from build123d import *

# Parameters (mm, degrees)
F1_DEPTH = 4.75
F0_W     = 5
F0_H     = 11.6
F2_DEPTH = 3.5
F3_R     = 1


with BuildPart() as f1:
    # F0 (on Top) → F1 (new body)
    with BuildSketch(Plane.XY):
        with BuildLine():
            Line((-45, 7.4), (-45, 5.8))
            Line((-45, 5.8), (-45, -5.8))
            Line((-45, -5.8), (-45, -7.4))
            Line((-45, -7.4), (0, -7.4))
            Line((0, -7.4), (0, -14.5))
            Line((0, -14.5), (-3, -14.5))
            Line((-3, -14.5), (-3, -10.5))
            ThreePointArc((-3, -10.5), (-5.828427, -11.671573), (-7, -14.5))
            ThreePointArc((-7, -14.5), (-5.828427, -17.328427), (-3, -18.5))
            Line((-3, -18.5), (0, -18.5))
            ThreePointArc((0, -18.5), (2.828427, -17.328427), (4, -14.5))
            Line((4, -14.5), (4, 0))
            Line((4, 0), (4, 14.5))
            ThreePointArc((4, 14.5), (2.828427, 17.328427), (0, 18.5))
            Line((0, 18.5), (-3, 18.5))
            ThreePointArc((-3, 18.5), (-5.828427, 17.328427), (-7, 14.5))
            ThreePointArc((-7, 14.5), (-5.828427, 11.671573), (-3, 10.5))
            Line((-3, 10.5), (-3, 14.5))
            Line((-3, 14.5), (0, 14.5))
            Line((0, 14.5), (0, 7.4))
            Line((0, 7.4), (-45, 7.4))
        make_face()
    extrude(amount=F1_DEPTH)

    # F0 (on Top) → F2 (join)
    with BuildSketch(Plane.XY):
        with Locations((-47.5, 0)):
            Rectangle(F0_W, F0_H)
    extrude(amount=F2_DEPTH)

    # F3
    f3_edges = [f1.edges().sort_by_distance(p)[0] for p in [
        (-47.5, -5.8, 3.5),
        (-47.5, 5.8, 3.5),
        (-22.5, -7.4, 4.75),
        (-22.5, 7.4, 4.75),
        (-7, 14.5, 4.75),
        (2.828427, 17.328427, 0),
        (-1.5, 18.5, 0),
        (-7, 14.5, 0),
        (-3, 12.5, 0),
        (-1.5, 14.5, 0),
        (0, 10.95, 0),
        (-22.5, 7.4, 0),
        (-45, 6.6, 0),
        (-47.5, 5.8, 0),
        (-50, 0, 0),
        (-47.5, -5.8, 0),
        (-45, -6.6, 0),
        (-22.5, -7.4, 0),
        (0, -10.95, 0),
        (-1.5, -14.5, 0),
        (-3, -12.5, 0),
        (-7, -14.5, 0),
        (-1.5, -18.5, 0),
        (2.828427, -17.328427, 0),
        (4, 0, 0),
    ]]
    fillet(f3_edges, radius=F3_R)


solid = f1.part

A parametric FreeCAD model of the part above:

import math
import FreeCAD as App
import Part
import Sketcher
from FreeCAD import Vector
Q = App.Units.Quantity


def edges_at(feature, points):
    """Names of the edges that pass closest to the given points."""
    edges = feature.Shape.Edges
    near = lambda p: min(range(len(edges)), key=lambda i: edges[i].distToShape(Part.Vertex(*p))[0])
    return sorted({f"Edge{near(p) + 1}" for p in points})


def add_polygon(sketch, points):
    """Adds a closed chain of lines whose ends are joined by coincident constraints."""
    first, n = sketch.GeometryCount, len(points)
    for a, b in zip(points, points[1:] + points[:1]):
        sketch.addGeometry(Part.LineSegment(App.Vector(*a, 0), App.Vector(*b, 0)), False)
    for i in range(n):
        sketch.addConstraint(Sketcher.Constraint("Coincident", first + i, 2, first + (i + 1) % n, 1))

doc = App.newDocument("Part")
body = doc.addObject("PartDesign::Body", "Body")

sketch1 = body.newObject("Sketcher::SketchObject", "Sketch")
sketch1.AttachmentSupport = (doc.getObject("XY_Plane"), [""])
sketch1.MapMode = "FlatFace"
sketch1.addGeometry([
    Part.LineSegment(Vector(-45, 7.4, 0), Vector(-45, -7.4, 0)),
    Part.LineSegment(Vector(-45, -7.4, 0), Vector(0, -7.4, 0)),
    Part.LineSegment(Vector(0, -7.4, 0), Vector(0, -14.5, 0)),
    Part.LineSegment(Vector(0, -14.5, 0), Vector(-3, -14.5, 0)),
    Part.LineSegment(Vector(-3, -14.5, 0), Vector(-3, -10.5, 0)),
    Part.ArcOfCircle(Part.Circle(Vector(-3, -14.5, 0), Vector(0, 0, 1), 4), math.radians(90.000006), math.radians(179.999994)),
    Part.ArcOfCircle(Part.Circle(Vector(-3, -14.5, 0), Vector(0, 0, 1), 4), math.radians(-179.999994), math.radians(-90.000006)),
    Part.LineSegment(Vector(-3, -18.5, 0), Vector(0, -18.5, 0)),
    Part.ArcOfCircle(Part.Circle(Vector(0, -14.5, 0), Vector(0, 0, 1), 4), math.radians(-89.999994), math.radians(-0.000006)),
    Part.LineSegment(Vector(4, -14.5, 0), Vector(4, 14.5, 0)),
    Part.ArcOfCircle(Part.Circle(Vector(0, 14.5, 0), Vector(0, 0, 1), 4), math.radians(0.000006), math.radians(89.999994)),
    Part.LineSegment(Vector(0, 18.5, 0), Vector(-3, 18.5, 0)),
    Part.ArcOfCircle(Part.Circle(Vector(-3, 14.5, 0), Vector(0, 0, 1), 4), math.radians(90.000006), math.radians(179.999994)),
    Part.ArcOfCircle(Part.Circle(Vector(-3, 14.5, 0), Vector(0, 0, 1), 4), math.radians(-179.999994), math.radians(-90.000006)),
    Part.LineSegment(Vector(-3, 10.5, 0), Vector(-3, 14.5, 0)),
    Part.LineSegment(Vector(-3, 14.5, 0), Vector(0, 14.5, 0)),
    Part.LineSegment(Vector(0, 14.5, 0), Vector(0, 7.4, 0)),
    Part.LineSegment(Vector(0, 7.4, 0), Vector(-45, 7.4, 0)),
], False)
sketch1.addConstraint([
    Sketcher.Constraint("Coincident", 0, 2, 1, 1),
    Sketcher.Constraint("Coincident", 1, 2, 2, 1),
    Sketcher.Constraint("Coincident", 2, 2, 3, 1),
    Sketcher.Constraint("Coincident", 3, 2, 4, 1),
    Sketcher.Constraint("Coincident", 4, 2, 5, 1),
    Sketcher.Constraint("Tangent", 5, 2, 6, 1),
    Sketcher.Constraint("Tangent", 6, 2, 7, 1),
    Sketcher.Constraint("Tangent", 7, 2, 8, 1),
    Sketcher.Constraint("Tangent", 8, 2, 9, 1),
    Sketcher.Constraint("Tangent", 9, 2, 10, 1),
    Sketcher.Constraint("Tangent", 10, 2, 11, 1),
    Sketcher.Constraint("Tangent", 11, 2, 12, 1),
    Sketcher.Constraint("Tangent", 12, 2, 13, 1),
    Sketcher.Constraint("Coincident", 13, 2, 14, 1),
    Sketcher.Constraint("Coincident", 14, 2, 15, 1),
    Sketcher.Constraint("Coincident", 15, 2, 16, 1),
    Sketcher.Constraint("Coincident", 16, 2, 17, 1),
    Sketcher.Constraint("Coincident", 17, 2, 0, 1),
    Sketcher.Constraint("Vertical", 0),
    Sketcher.Constraint("Horizontal", 1),
    Sketcher.Constraint("Vertical", 2),
    Sketcher.Constraint("Horizontal", 3),
    Sketcher.Constraint("Vertical", 4),
    Sketcher.Constraint("Horizontal", 7),
    Sketcher.Constraint("Vertical", 9),
    Sketcher.Constraint("Horizontal", 11),
    Sketcher.Constraint("Vertical", 14),
    Sketcher.Constraint("Horizontal", 15),
    Sketcher.Constraint("Vertical", 16),
    Sketcher.Constraint("Horizontal", 17),
    Sketcher.Constraint("Coincident", 2, 2, 8, 3),
    Sketcher.Constraint("Coincident", 3, 2, 5, 3),
    Sketcher.Constraint("Coincident", 14, 2, 12, 3),
    Sketcher.Constraint("Coincident", 15, 2, 10, 3),
    Sketcher.Constraint("Equal", 5, 6),
    Sketcher.Constraint("Equal", 8, 10),
    Sketcher.Constraint("Equal", 12, 13),
    Sketcher.Constraint("Symmetric", 8, 3, 10, 3, -1, 1),
    Sketcher.Constraint("Symmetric", 5, 2, 12, 2, -1),
    Sketcher.Constraint("Horizontal", 3, 2, 5, 2),
    Sketcher.Constraint("Equal", 2, 16),
    Sketcher.Constraint("Radius", 5, Q("4 mm")),
    Sketcher.Constraint("DistanceX", 1, 1, 1, 2, Q("45 mm")),
    Sketcher.Constraint("DistanceX", 3, 2, 3, 1, Q("3 mm")),
    Sketcher.Constraint("DistanceY", 9, 1, 9, 2, Q("29 mm")),
    Sketcher.Constraint("DistanceY", 0, 2, 0, 1, Q("14.8 mm")),
])
pad1 = body.newObject("PartDesign::Pad", "Pad")
pad1.Profile = sketch1
pad1.Length = 4.75

sketch2 = body.newObject("Sketcher::SketchObject", "Sketch001")
sketch2.AttachmentSupport = (doc.getObject("XY_Plane"), [""])
sketch2.MapMode = "FlatFace"
add_polygon(sketch2, [(-50, 5.8), (-50, -5.8), (-45, -5.8), (-45, 5.8)])
sketch2.addConstraint([
    Sketcher.Constraint("Vertical", 0),
    Sketcher.Constraint("Horizontal", 1),
    Sketcher.Constraint("Vertical", 2),
    Sketcher.Constraint("Horizontal", 3),
    Sketcher.Constraint("DistanceX", 1, 1, 1, 2, Q("5 mm")),
    Sketcher.Constraint("DistanceY", 0, 2, 0, 1, Q("11.6 mm")),
    Sketcher.Constraint("DistanceX", 0, 2, -1, 1, Q("50 mm")),
    Sketcher.Constraint("DistanceY", 0, 2, -1, 1, Q("5.8 mm")),
])
pad2 = body.newObject("PartDesign::Pad", "Pad001")
pad2.Profile = sketch2
pad2.Length = 3.5
doc.recompute()

fillet = body.newObject("PartDesign::Fillet", "Fillet")
fillet.Base = (pad2, edges_at(pad2, [
    (-47.5, -5.8, 3.5),
    (-47.5, 5.8, 3.5),
    (-22.5, -7.4, 4.75),
    (-22.5, 7.4, 4.75),
    (-5.828, 17.328, 4.75),
    (2.828, 17.328, 0),
    (-1.5, 18.5, 0),
    (-5.828, 17.328, 0),
    (-3, 12.5, 0),
    (-1.5, 14.5, 0),
    (0, 10.95, 0),
    (-22.5, 7.4, 0),
    (-45, 6.6, 0),
    (-47.5, 5.8, 0),
    (-50, 0, 0),
    (-47.5, -5.8, 0),
    (-45, -6.6, 0),
    (-22.5, -7.4, 0),
    (0, -10.95, 0),
    (-1.5, -14.5, 0),
    (-3, -12.5, 0),
    (-5.828, -11.672, 0),
    (-1.5, -18.5, 0),
    (2.828, -17.328, 0),
    (4, 0, 0),
]))
fillet.Radius = 1

doc.recompute()
